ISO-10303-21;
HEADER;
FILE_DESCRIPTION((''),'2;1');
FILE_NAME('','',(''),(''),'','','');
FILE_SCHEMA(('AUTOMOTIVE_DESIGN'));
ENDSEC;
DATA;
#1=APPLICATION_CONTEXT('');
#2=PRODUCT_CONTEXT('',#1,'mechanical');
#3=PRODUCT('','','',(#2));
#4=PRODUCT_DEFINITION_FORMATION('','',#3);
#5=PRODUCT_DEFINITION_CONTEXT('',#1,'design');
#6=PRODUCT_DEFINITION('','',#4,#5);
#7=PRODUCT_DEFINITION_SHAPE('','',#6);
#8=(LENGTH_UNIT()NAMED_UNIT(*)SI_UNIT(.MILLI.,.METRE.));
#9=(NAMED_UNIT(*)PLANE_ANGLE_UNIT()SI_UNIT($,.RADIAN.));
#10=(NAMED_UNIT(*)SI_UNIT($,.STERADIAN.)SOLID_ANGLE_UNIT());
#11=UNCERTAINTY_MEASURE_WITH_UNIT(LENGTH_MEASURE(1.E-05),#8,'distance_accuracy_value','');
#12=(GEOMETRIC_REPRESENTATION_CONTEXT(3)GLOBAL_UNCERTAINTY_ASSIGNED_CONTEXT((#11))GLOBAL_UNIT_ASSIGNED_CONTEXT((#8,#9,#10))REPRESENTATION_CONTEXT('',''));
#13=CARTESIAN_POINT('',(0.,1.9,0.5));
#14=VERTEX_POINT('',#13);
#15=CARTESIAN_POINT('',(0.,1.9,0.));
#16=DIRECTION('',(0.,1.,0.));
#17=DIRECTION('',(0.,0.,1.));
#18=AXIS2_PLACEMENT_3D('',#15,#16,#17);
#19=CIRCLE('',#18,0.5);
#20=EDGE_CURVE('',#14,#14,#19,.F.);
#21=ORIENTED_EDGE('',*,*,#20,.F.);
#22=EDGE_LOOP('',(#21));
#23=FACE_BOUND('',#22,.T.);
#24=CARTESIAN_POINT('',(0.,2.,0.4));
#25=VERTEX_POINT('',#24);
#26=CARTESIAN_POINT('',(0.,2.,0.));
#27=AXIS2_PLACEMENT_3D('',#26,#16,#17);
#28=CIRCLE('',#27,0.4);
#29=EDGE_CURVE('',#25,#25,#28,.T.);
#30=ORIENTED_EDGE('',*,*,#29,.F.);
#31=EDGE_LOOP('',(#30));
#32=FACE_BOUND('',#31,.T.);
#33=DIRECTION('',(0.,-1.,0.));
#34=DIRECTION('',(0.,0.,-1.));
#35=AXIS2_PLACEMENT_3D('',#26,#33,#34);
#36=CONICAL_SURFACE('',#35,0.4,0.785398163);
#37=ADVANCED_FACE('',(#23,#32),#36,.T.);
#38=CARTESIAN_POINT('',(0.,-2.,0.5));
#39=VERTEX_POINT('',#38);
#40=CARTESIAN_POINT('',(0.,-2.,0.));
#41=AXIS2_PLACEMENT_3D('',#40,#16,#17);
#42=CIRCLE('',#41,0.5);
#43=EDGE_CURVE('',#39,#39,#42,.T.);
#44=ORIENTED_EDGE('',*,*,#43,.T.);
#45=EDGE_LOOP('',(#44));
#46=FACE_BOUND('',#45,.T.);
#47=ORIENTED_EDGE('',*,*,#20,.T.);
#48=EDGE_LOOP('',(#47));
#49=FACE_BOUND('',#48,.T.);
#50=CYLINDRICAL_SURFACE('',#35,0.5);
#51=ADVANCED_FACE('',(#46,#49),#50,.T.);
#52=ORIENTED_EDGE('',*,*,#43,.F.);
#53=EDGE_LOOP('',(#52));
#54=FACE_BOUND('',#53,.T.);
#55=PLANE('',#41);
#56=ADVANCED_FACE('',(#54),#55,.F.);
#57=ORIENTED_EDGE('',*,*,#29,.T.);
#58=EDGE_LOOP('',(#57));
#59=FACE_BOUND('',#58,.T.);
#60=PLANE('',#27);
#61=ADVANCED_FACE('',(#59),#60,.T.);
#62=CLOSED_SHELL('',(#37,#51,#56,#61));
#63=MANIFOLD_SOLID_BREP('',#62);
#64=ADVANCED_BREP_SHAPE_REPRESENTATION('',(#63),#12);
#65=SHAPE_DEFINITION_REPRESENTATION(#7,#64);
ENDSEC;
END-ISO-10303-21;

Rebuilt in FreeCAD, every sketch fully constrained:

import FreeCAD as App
import Part
import Sketcher

V = App.Vector


def edges_at(feature, points):
    """Names of the edges that pass closest to the given points."""
    edges = feature.Shape.Edges
    near = lambda p: min(range(len(edges)), key=lambda i: edges[i].distToShape(Part.Vertex(*p))[0])
    return sorted({f"Edge{near(p) + 1}" for p in points})

doc = App.newDocument("Part")
params = doc.addObject("Spreadsheet::Sheet", "Params")
for row, (alias, value) in enumerate([
    ("sketch1_diameter", "1 mm"),
    ("pad1_length", "4 mm"),
    ("chamfer_size", "0.1 mm"),
], start=1):
    params.set(f"A{row}", alias)
    params.set(f"B{row}", "=" + value)
    params.setAlias(f"B{row}", alias)

body = doc.addObject("PartDesign::Body", "Body")

# Sketch on XZ plane
sketch1 = body.newObject("Sketcher::SketchObject", "Sketch")
sketch1.AttachmentSupport = (doc.getObject("XZ_Plane"), [""])
sketch1.MapMode = "FlatFace"
sketch1.addGeometry(Part.Circle(V(0, 0, 0), V(0, 0, 1), 0.5), False)
sketch1.addConstraint(Sketcher.Constraint("Coincident", 0, 3, -1, 1))
sketch1.addConstraint(Sketcher.Constraint("Diameter", 0, 1.0))
sketch1.setExpression("Constraints[1]", "Params.sketch1_diameter")
pad1 = body.newObject("PartDesign::Pad", "Pad")
pad1.Profile = sketch1
pad1.setExpression("Length", "Params.pad1_length")
pad1.Midplane = True
doc.recompute()

chamfer = body.newObject("PartDesign::Chamfer", "Chamfer")
chamfer.Base = (pad1, edges_at(pad1, [(-0.5, 2, 0)]))
chamfer.setExpression("Size", "Params.chamfer_size")

doc.recompute()
